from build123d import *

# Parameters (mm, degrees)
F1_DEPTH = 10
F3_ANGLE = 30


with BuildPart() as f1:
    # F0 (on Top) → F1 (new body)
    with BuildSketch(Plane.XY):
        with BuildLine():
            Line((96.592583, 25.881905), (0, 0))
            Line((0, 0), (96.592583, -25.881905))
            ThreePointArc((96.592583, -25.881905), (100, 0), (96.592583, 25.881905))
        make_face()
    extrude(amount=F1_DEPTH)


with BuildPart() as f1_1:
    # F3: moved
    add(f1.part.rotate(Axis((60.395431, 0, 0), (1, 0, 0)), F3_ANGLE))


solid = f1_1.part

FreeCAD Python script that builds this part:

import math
import FreeCAD as App
import Part
import Sketcher
Q = App.Units.Quantity

doc = App.newDocument("Part")
params = doc.addObject("Spreadsheet::Sheet", "Params")
for row, (alias, value) in enumerate([
    ("sketch1_length", "100 mm"),
    ("pad1_length", "10 mm"),
], start=1):
    params.set(f"A{row}", alias)
    params.set(f"B{row}", "=" + value)
    params.setAlias(f"B{row}", alias)

body = doc.addObject("PartDesign::Body", "Body")

sketch1 = body.newObject("Sketcher::SketchObject", "Sketch")
sketch1.AttachmentSupport = (doc.getObject("XY_Plane"), [""])
sketch1.MapMode = "FlatFace"
sketch1.addGeometry([
    Part.LineSegment(App.Vector(97, 26, 0), App.Vector(0, 0, 0)),
    Part.LineSegment(App.Vector(0, 0, 0), App.Vector(97, -26, 0)),
    Part.ArcOfCircle(Part.Circle(App.Vector(0, 0, 0), App.Vector(0, 0, 1), 100), math.radians(-15), math.radians(15)),
], False)
sketch1.addConstraint([
    Sketcher.Constraint("Coincident", 0, 2, 1, 1),
    Sketcher.Constraint("Coincident", 1, 2, 2, 1),
    Sketcher.Constraint("Coincident", 2, 2, 0, 1),
    Sketcher.Constraint("Coincident", 0, 2, -1, 1),
    Sketcher.Constraint("Symmetric", 1, 2, 2, 2, -1),
    Sketcher.Constraint("Angle", 0, Q("-165 deg")),
    Sketcher.Constraint("Distance", 0, 100.0),
    Sketcher.Constraint("Radius", 2, 100.000014),
])
sketch1.setExpression("Constraints[6]", "Params.sketch1_length")
pad1 = body.newObject("PartDesign::Pad", "Pad")
pad1.Profile = sketch1
pad1.setExpression("Length", "Params.pad1_length")
body2 = doc.addObject("PartDesign::Body", "Body001")
doc.recompute()

body.Placement = App.Placement(App.Vector(0, 0, 0), App.Rotation(App.Vector(1, 0, 0), 30))
boolean = body2.newObject("PartDesign::Boolean", "Boolean")
boolean.Type = "Fuse"
boolean.addObjects([body])

doc.recompute()
